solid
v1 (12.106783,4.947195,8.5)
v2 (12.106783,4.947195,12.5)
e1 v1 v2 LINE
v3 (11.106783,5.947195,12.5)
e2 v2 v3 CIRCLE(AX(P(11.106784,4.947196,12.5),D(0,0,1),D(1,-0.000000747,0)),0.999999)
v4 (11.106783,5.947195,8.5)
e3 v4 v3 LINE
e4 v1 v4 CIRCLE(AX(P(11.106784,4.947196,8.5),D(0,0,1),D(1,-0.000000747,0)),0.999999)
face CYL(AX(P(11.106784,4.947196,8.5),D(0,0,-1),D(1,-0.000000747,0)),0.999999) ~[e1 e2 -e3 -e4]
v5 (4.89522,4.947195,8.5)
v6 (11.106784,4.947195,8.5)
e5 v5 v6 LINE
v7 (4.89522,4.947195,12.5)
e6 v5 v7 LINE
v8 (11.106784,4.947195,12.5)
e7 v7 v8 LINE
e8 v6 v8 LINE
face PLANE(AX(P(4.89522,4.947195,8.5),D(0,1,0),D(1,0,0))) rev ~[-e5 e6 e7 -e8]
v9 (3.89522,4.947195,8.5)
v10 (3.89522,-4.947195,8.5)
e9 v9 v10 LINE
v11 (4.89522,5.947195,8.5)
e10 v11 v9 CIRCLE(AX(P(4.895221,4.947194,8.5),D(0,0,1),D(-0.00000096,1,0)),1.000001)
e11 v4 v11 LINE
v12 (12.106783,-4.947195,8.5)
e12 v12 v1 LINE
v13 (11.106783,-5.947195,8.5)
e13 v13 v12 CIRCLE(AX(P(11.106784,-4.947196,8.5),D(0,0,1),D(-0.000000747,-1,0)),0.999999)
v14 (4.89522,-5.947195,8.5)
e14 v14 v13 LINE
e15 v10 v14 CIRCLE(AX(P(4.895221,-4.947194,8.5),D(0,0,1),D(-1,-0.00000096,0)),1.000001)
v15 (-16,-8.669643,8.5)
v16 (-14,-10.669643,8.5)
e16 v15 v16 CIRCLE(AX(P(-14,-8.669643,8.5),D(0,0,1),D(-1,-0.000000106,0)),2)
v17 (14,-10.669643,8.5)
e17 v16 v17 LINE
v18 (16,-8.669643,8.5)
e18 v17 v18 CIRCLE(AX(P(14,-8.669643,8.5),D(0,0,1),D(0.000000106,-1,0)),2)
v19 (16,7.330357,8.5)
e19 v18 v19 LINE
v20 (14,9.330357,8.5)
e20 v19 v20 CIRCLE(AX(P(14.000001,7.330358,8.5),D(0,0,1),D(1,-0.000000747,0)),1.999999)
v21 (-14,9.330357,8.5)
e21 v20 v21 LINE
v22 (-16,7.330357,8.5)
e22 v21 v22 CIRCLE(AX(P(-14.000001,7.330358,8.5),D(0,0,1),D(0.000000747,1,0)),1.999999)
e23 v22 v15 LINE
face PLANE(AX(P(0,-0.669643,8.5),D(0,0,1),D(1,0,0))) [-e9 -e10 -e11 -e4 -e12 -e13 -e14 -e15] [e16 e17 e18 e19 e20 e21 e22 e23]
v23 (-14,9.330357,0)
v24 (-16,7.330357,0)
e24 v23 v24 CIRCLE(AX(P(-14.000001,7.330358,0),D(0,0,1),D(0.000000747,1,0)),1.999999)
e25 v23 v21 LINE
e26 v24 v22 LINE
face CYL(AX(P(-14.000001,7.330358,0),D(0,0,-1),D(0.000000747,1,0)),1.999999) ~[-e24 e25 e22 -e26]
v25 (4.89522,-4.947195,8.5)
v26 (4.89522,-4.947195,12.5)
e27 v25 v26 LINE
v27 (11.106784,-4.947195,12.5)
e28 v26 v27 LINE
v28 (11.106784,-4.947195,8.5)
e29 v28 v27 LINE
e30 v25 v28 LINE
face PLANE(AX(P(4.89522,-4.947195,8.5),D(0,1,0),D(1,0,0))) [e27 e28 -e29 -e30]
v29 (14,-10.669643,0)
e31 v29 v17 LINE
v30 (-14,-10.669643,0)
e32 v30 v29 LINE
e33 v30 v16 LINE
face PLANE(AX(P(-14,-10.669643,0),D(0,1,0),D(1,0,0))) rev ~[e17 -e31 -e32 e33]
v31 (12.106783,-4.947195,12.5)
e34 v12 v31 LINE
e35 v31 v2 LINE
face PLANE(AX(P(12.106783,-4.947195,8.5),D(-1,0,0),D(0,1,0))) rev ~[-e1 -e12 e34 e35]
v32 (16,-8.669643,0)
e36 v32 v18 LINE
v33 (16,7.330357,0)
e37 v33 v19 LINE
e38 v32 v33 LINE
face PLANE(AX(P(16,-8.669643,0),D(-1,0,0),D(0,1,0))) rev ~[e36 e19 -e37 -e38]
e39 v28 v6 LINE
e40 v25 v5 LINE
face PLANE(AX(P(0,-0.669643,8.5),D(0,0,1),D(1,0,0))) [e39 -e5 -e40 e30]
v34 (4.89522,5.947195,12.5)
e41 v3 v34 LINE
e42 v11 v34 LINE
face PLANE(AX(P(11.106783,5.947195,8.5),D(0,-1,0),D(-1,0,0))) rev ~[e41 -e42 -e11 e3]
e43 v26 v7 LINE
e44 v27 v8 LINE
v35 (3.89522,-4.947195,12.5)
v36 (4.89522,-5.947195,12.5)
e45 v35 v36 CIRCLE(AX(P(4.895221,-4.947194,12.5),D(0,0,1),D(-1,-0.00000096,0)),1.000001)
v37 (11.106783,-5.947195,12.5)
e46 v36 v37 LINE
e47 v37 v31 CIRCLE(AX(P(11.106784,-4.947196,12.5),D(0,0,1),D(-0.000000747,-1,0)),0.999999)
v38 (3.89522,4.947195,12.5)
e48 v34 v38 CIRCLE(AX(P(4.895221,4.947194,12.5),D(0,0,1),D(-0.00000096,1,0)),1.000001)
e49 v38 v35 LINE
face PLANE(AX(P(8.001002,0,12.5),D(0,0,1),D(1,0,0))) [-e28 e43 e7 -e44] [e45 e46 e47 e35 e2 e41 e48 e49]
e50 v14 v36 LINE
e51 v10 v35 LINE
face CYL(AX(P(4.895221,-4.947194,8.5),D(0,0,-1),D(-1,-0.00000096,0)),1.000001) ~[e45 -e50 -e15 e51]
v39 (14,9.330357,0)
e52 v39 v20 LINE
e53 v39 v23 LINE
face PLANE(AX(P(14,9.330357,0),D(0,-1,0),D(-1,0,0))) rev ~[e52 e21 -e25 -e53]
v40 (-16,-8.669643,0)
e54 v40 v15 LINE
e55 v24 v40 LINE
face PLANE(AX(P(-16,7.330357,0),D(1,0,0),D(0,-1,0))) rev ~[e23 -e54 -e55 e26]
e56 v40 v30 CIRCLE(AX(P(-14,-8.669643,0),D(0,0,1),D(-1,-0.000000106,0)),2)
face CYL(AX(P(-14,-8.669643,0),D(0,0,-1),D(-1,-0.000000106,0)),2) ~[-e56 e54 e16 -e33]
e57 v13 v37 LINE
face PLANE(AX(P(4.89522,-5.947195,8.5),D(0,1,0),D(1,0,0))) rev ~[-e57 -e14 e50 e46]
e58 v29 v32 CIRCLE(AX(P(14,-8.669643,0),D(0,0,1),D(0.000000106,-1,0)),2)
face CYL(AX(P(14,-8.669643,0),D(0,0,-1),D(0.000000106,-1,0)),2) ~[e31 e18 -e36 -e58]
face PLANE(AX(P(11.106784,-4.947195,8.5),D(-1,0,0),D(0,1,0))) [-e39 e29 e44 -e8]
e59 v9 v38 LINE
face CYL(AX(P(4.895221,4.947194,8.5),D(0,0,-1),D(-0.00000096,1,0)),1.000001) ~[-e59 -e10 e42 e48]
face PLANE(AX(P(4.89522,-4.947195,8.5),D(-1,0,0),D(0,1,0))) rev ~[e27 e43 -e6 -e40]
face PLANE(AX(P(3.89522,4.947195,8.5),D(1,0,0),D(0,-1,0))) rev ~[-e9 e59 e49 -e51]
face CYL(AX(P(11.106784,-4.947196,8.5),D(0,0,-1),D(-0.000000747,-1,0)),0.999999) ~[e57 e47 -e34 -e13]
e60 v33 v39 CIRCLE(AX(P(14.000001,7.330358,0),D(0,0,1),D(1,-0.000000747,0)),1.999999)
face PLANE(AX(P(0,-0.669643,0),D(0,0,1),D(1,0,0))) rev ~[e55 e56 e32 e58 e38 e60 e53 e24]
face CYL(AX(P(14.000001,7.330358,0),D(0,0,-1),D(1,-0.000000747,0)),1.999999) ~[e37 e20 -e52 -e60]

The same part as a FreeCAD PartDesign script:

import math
import FreeCAD as App
import Part
import Sketcher
from FreeCAD import Vector

doc = App.newDocument("Part")
params = doc.addObject("Spreadsheet::Sheet", "Params")
for row, (alias, value) in enumerate([
    ("sketch1_radius", "1.999999 mm"),
    ("sketch1_width", "28 mm"),
    ("sketch1_height", "16 mm"),
    ("pad1_length", "8.5 mm"),
    ("sketch2_radius", "0.999999 mm"),
    ("pad2_length", "4 mm"),
], start=1):
    params.set(f"A{row}", alias)
    params.set(f"B{row}", "=" + value)
    params.setAlias(f"B{row}", alias)

body = doc.addObject("PartDesign::Body", "Body")

# Sketch on XY plane
sketch1 = body.newObject("Sketcher::SketchObject", "Sketch")
sketch1.AttachmentSupport = (doc.getObject("XY_Plane"), [""])
sketch1.MapMode = "FlatFace"
sketch1.addGeometry([
    Part.ArcOfCircle(Part.Circle(Vector(14, 7.3, 0), Vector(0, 0, 1), 2), math.radians(0), math.radians(90)),  # 0
    Part.LineSegment(Vector(14, 9.3, 0), Vector(-14, 9.3, 0)),  # 1
    Part.ArcOfCircle(Part.Circle(Vector(-14, 7.3, 0), Vector(0, 0, 1), 2), math.radians(90), math.radians(180)),  # 2
    Part.LineSegment(Vector(-16, 7.3, 0), Vector(-16, -8.7, 0)),  # 3
    Part.ArcOfCircle(Part.Circle(Vector(-14, -8.7, 0), Vector(0, 0, 1), 2), math.radians(-180), math.radians(-90)),  # 4
    Part.LineSegment(Vector(-14, -10.7, 0), Vector(14, -10.7, 0)),  # 5
    Part.ArcOfCircle(Part.Circle(Vector(14, -8.7, 0), Vector(0, 0, 1), 2), math.radians(-90), math.radians(0)),  # 6
    Part.LineSegment(Vector(16, -8.7, 0), Vector(16, 7.3, 0)),  # 7
], False)
sketch1.addConstraint([
    Sketcher.Constraint("Tangent", 0, 2, 1, 1),
    Sketcher.Constraint("Tangent", 1, 2, 2, 1),
    Sketcher.Constraint("Tangent", 2, 2, 3, 1),
    Sketcher.Constraint("Tangent", 3, 2, 4, 1),
    Sketcher.Constraint("Tangent", 4, 2, 5, 1),
    Sketcher.Constraint("Tangent", 5, 2, 6, 1),
    Sketcher.Constraint("Tangent", 6, 2, 7, 1),
    Sketcher.Constraint("Tangent", 7, 2, 0, 1),
    Sketcher.Constraint("Horizontal", 1),
    Sketcher.Constraint("Vertical", 3),
    Sketcher.Constraint("Horizontal", 5),
    Sketcher.Constraint("Vertical", 7),
    Sketcher.Constraint("Equal", 0, 2),
    Sketcher.Constraint("Equal", 2, 4),
    Sketcher.Constraint("Equal", 4, 6),
    Sketcher.Constraint("Radius", 0, 1.999999),
    Sketcher.Constraint("DistanceX", 1, 2, 1, 1, 28.0),
    Sketcher.Constraint("DistanceY", 3, 2, 3, 1, 16.0),
    Sketcher.Constraint("DistanceX", -1, 1, 0, 3, 14.000001),
    Sketcher.Constraint("DistanceY", -1, 1, 0, 3, 7.330358),
])
sketch1.setExpression("Constraints[15]", "Params.sketch1_radius")
sketch1.setExpression("Constraints[16]", "Params.sketch1_width")
sketch1.setExpression("Constraints[17]", "Params.sketch1_height")
pad1 = body.newObject("PartDesign::Pad", "Pad")
pad1.Profile = sketch1
pad1.setExpression("Length", "Params.pad1_length")

# Sketch on XY plane
sketch2 = body.newObject("Sketcher::SketchObject", "Sketch001")
sketch2.AttachmentSupport = (doc.getObject("XY_Plane"), [""])
sketch2.MapMode = "FlatFace"
sketch2.AttachmentOffset = App.Placement(Vector(0, 0, 8.5), App.Rotation())
sketch2.addGeometry([
    Part.ArcOfCircle(Part.Circle(Vector(11.1, 4.9, 0), Vector(0, 0, 1), 1), math.radians(0), math.radians(90)),  # 0
    Part.LineSegment(Vector(11.1, 5.9, 0), Vector(4.9, 5.9, 0)),  # 1
    Part.ArcOfCircle(Part.Circle(Vector(4.9, 4.9, 0), Vector(0, 0, 1), 1), math.radians(90), math.radians(180)),  # 2
    Part.LineSegment(Vector(3.9, 4.9, 0), Vector(3.9, -4.9, 0)),  # 3
    Part.ArcOfCircle(Part.Circle(Vector(4.9, -4.9, 0), Vector(0, 0, 1), 1), math.radians(-180), math.radians(-90)),  # 4
    Part.LineSegment(Vector(4.9, -5.9, 0), Vector(11.1, -5.9, 0)),  # 5
    Part.ArcOfCircle(Part.Circle(Vector(11.1, -4.9, 0), Vector(0, 0, 1), 1), math.radians(-90), math.radians(0)),  # 6
    Part.LineSegment(Vector(12.1, -4.9, 0), Vector(12.1, 4.9, 0)),  # 7
    Part.LineSegment(Vector(11.1, -4.9, 0), Vector(4.9, -4.9, 0)),  # 8
    Part.LineSegment(Vector(4.9, -4.9, 0), Vector(4.9, 4.9, 0)),  # 9
    Part.LineSegment(Vector(4.9, 4.9, 0), Vector(11.1, 4.9, 0)),  # 10
    Part.LineSegment(Vector(11.1, 4.9, 0), Vector(11.1, -4.9, 0)),  # 11
], False)
sketch2.addConstraint([
    Sketcher.Constraint("Tangent", 0, 2, 1, 1),
    Sketcher.Constraint("Tangent", 1, 2, 2, 1),
    Sketcher.Constraint("Tangent", 2, 2, 3, 1),
    Sketcher.Constraint("Tangent", 3, 2, 4, 1),
    Sketcher.Constraint("Tangent", 4, 2, 5, 1),
    Sketcher.Constraint("Tangent", 5, 2, 6, 1),
    Sketcher.Constraint("Tangent", 6, 2, 7, 1),
    Sketcher.Constraint("Tangent", 7, 2, 0, 1),
    Sketcher.Constraint("Coincident", 8, 2, 9, 1),
    Sketcher.Constraint("Coincident", 9, 2, 10, 1),
    Sketcher.Constraint("Coincident", 10, 2, 11, 1),
    Sketcher.Constraint("Coincident", 11, 2, 8, 1),
    Sketcher.Constraint("Horizontal", 1),
    Sketcher.Constraint("Vertical", 3),
    Sketcher.Constraint("Horizontal", 5),
    Sketcher.Constraint("Vertical", 7),
    Sketcher.Constraint("Horizontal", 8),
    Sketcher.Constraint("Vertical", 9),
    Sketcher.Constraint("Horizontal", 10),
    Sketcher.Constraint("Vertical", 11),
    Sketcher.Constraint("Coincident", 8, 2, 4, 3),
    Sketcher.Constraint("Coincident", 9, 2, 2, 3),
    Sketcher.Constraint("Coincident", 10, 2, 0, 3),
    Sketcher.Constraint("Equal", 4, 6),
    Sketcher.Constraint("Radius", 0, 0.999999),
    Sketcher.Constraint("DistanceY", 3, 2, 3, 1, 9.89439),
    Sketcher.Constraint("DistanceX", 1, 2, 1, 1, 6.211563),
    Sketcher.Constraint("DistanceX", -1, 1, 2, 3, 4.895221),
    Sketcher.Constraint("DistanceY", -1, 1, 0, 3, 4.947196),
])
sketch2.setExpression("Constraints[24]", "Params.sketch2_radius")
pad2 = body.newObject("PartDesign::Pad", "Pad001")
pad2.Profile = sketch2
pad2.setExpression("Length", "Params.pad2_length")

doc.recompute()
